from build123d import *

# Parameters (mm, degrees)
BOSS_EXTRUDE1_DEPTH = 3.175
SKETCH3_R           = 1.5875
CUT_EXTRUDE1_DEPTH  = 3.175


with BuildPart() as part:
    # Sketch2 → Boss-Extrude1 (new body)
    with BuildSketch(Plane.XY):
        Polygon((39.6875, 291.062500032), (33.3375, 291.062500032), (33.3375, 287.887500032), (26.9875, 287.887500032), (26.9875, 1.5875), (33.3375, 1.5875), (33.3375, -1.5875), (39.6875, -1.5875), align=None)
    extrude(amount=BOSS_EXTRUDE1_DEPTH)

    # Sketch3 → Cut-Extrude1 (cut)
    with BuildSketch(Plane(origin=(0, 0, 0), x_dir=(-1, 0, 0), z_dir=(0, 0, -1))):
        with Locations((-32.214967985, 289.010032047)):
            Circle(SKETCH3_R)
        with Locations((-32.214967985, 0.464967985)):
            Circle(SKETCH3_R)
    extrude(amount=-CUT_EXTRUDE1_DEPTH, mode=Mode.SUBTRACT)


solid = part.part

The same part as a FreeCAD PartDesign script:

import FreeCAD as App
import Part
import Sketcher
Q = App.Units.Quantity


def add_polygon(sketch, points):
    """Adds a closed chain of lines whose ends are joined by coincident constraints."""
    first, n = sketch.GeometryCount, len(points)
    for a, b in zip(points, points[1:] + points[:1]):
        sketch.addGeometry(Part.LineSegment(App.Vector(*a, 0), App.Vector(*b, 0)), False)
    for i in range(n):
        sketch.addConstraint(Sketcher.Constraint("Coincident", first + i, 2, first + (i + 1) % n, 1))

doc = App.newDocument("Part")
params = doc.addObject("Spreadsheet::Sheet", "Params")
for row, (alias, value) in enumerate([
    ("sketch1_width", "0.25 in"),
    ("sketch1_height", "0.125 in"),
    ("pad1_length", "0.125 in"),
    ("sketch2_diameter", "0.125 in"),
    ("pocket1_length", "0.125 in"),
], start=1):
    params.set(f"A{row}", alias)
    params.set(f"B{row}", "=" + value)
    params.setAlias(f"B{row}", alias)

body = doc.addObject("PartDesign::Body", "Body")

# Sketch on XY plane
sketch1 = body.newObject("Sketcher::SketchObject", "Sketch")
sketch1.AttachmentSupport = (doc.getObject("XY_Plane"), [""])
sketch1.MapMode = "FlatFace"
add_polygon(sketch1, [(39.6875, 291.0625), (33.3375, 291.0625), (33.3375, 287.8875), (26.9875, 287.8875), (26.9875, 1.5875), (33.3375, 1.5875), (33.3375, -1.5875), (39.6875, -1.5875)])  # lines 0-7
sketch1.addConstraint([
    Sketcher.Constraint("Horizontal", 0),
    Sketcher.Constraint("Vertical", 1),
    Sketcher.Constraint("Horizontal", 2),
    Sketcher.Constraint("Vertical", 3),
    Sketcher.Constraint("Horizontal", 4),
    Sketcher.Constraint("Vertical", 5),
    Sketcher.Constraint("Horizontal", 6),
    Sketcher.Constraint("Vertical", 7),
    Sketcher.Constraint("Vertical", 1, 2, 4, 2),
    Sketcher.Constraint("Equal", 0, 2),
    Sketcher.Constraint("Equal", 1, 5),
    Sketcher.Constraint("DistanceX", 0, 2, 0, 1, Q("0.25 in")),
    Sketcher.Constraint("DistanceY", 1, 2, 1, 1, Q("0.125 in")),
    Sketcher.Constraint("DistanceX", -1, 1, 0, 2, Q("1.3125 in")),
    Sketcher.Constraint("DistanceY", -1, 1, 3, 2, Q("0.0625 in")),
    Sketcher.Constraint("DistanceY", 3, 2, 3, 1, 286.3),
])
sketch1.setExpression("Constraints[19]", "Params.sketch1_width")
sketch1.setExpression("Constraints[20]", "Params.sketch1_height")
pad1 = body.newObject("PartDesign::Pad", "Pad")
pad1.Profile = sketch1
pad1.setExpression("Length", "Params.pad1_length")

# Sketch on XY plane
sketch2 = body.newObject("Sketcher::SketchObject", "Sketch001")
sketch2.AttachmentSupport = (doc.getObject("XY_Plane"), [""])
sketch2.MapMode = "FlatFace"
sketch2.addGeometry([
    Part.Circle(App.Vector(32.214968, 289.010032, 0), App.Vector(0, 0, 1), 1.5875),
    Part.Circle(App.Vector(32.214968, 0.464968, 0), App.Vector(0, 0, 1), 1.5875),
], False)
sketch2.addConstraint([
    Sketcher.Constraint("Equal", 0, 1),
    Sketcher.Constraint("Vertical", 0, 3, 1, 3),
    Sketcher.Constraint("Diameter", 0, Q("0.125 in")),
    Sketcher.Constraint("DistanceX", -1, 1, 0, 3, 32.214968),
    Sketcher.Constraint("DistanceY", -1, 1, 0, 3, 289.010032),
    Sketcher.Constraint("DistanceY", -1, 1, 1, 3, 0.464968),
])
sketch2.setExpression("Constraints[2]", "Params.sketch2_diameter")
pocket1 = body.newObject("PartDesign::Pocket", "Pocket")
pocket1.Profile = sketch2
pocket1.setExpression("Length", "Params.pocket1_length")
pocket1.Reversed = True

doc.recompute()
